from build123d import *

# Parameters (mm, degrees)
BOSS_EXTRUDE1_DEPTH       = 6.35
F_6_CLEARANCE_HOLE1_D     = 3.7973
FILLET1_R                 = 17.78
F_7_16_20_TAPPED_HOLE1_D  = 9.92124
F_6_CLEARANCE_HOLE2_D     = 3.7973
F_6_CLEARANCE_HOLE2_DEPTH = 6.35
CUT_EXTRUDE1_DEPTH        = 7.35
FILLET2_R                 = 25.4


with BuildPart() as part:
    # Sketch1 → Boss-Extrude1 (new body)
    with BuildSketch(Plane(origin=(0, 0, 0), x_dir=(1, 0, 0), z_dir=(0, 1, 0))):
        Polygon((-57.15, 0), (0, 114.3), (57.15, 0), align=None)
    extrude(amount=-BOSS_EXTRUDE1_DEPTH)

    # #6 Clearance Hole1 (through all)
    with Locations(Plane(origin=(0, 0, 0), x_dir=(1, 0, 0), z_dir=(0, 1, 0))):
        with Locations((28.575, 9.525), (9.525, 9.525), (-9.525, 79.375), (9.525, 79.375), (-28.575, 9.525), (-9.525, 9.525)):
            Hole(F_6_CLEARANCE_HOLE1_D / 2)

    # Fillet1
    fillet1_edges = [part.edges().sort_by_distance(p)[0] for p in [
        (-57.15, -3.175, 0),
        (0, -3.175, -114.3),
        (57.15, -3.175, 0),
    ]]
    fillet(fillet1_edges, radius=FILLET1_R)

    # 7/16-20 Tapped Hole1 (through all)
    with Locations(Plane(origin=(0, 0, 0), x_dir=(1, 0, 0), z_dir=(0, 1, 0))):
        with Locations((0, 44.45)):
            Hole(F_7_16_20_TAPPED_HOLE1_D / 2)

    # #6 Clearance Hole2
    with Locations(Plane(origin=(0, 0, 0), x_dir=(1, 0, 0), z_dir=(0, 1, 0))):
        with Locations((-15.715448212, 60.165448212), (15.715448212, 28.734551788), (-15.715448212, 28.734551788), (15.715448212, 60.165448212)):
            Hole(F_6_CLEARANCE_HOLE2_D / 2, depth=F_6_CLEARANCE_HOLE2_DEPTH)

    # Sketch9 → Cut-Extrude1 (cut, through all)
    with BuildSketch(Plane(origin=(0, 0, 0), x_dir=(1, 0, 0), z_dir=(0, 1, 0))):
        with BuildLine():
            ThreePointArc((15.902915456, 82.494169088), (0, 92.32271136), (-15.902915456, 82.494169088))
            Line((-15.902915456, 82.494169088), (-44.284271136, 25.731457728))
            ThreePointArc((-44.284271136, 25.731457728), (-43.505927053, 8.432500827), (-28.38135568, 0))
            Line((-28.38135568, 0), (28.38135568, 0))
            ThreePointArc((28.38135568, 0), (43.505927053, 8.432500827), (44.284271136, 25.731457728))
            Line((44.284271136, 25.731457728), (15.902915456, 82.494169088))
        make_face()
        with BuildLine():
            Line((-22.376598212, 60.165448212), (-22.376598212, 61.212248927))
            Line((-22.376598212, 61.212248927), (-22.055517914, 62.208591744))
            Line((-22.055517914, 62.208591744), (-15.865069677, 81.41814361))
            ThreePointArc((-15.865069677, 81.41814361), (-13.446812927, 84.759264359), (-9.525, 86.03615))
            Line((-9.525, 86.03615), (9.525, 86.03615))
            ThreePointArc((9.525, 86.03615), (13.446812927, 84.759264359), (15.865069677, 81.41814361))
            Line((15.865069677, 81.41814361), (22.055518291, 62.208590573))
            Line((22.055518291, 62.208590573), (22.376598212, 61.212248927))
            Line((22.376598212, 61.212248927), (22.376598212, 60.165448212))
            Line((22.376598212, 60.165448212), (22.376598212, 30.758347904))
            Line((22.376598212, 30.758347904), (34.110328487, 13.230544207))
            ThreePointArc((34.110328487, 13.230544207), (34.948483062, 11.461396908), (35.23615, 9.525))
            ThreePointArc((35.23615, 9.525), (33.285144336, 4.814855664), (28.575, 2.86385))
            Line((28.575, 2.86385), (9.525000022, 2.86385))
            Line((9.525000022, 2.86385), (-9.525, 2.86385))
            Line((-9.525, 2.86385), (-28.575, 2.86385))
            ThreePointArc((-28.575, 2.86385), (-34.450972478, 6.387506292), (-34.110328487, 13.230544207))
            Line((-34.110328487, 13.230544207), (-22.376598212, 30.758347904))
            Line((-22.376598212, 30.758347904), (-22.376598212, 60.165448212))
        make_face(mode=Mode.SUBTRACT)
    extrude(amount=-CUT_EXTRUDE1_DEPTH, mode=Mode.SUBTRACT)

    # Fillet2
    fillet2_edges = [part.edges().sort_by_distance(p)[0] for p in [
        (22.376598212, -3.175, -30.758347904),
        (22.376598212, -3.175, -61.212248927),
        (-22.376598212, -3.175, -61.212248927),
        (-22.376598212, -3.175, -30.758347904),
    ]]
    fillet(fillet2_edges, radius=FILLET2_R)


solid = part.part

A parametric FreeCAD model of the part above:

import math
import FreeCAD as App
import Part
import Sketcher

V = App.Vector
Q = App.Units.Quantity


def edges_at(feature, points):
    """Names of the edges that pass closest to the given points."""
    edges = feature.Shape.Edges
    near = lambda p: min(range(len(edges)), key=lambda i: edges[i].distToShape(Part.Vertex(*p))[0])
    return sorted({f"Edge{near(p) + 1}" for p in points})


def add_polygon(sketch, points):
    """Adds a closed chain of lines whose ends are joined by coincident constraints."""
    first, n = sketch.GeometryCount, len(points)
    for a, b in zip(points, points[1:] + points[:1]):
        sketch.addGeometry(Part.LineSegment(App.Vector(*a, 0), App.Vector(*b, 0)), False)
    for i in range(n):
        sketch.addConstraint(Sketcher.Constraint("Coincident", first + i, 2, first + (i + 1) % n, 1))

doc = App.newDocument("Part")
body = doc.addObject("PartDesign::Body", "Body")

# Sketch on XZ plane
sketch1 = doc.addObject("Sketcher::SketchObject", "Sketch")
body.addObject(sketch1)
sketch1.AttachmentSupport = (doc.XZ_Plane, [""])
sketch1.MapMode = "FlatFace"
add_polygon(sketch1, [(0, -114), (-57, 0), (57, 0)])  # lines 0-2
sketch1.addConstraint(Sketcher.Constraint("Horizontal", 1))
sketch1.addConstraint(Sketcher.Constraint("Symmetric", 0, 2, 1, 2, -1, 1))
sketch1.addConstraint(Sketcher.Constraint("PointOnObject", 2, 2, -2))
sketch1.addConstraint(Sketcher.Constraint("DistanceX", 1, 1, 1, 2, Q("4.5 in")))
sketch1.addConstraint(Sketcher.Constraint("DistanceY", 2, 2, -1, 1, Q("4.5 in")))
pad1 = doc.addObject("PartDesign::Pad", "Pad")
body.addObject(pad1)
pad1.Profile = sketch1
pad1.Length = Q("0.25 in")

# Sketch on XZ plane
sketch2 = doc.addObject("Sketcher::SketchObject", "Sketch001")
body.addObject(sketch2)
sketch2.AttachmentSupport = (doc.XZ_Plane, [""])
sketch2.MapMode = "FlatFace"
sketch2.addGeometry(Part.Circle(V(28.6, -9.5, 0), V(0, 0, 1), 1.9), False)
sketch2.addGeometry(Part.Circle(V(9.5, -9.5, 0), V(0, 0, 1), 1.9), False)
sketch2.addGeometry(Part.Circle(V(-9.5, -79.4, 0), V(0, 0, 1), 1.9), False)
sketch2.addGeometry(Part.Circle(V(9.5, -79.4, 0), V(0, 0, 1), 1.9), False)
sketch2.addGeometry(Part.Circle(V(-28.6, -9.5, 0), V(0, 0, 1), 1.9), False)
sketch2.addGeometry(Part.Circle(V(-9.5, -9.5, 0), V(0, 0, 1), 1.9), False)
sketch2.addConstraint(Sketcher.Constraint("Equal", 0, 1))
sketch2.addConstraint(Sketcher.Constraint("Equal", 1, 2))
sketch2.addConstraint(Sketcher.Constraint("Equal", 2, 3))
sketch2.addConstraint(Sketcher.Constraint("Equal", 3, 4))
sketch2.addConstraint(Sketcher.Constraint("Equal", 4, 5))
sketch2.addConstraint(Sketcher.Constraint("Symmetric", 2, 3, 3, 3, -2))
sketch2.addConstraint(Sketcher.Constraint("Symmetric", 0, 3, 4, 3, -2))
sketch2.addConstraint(Sketcher.Constraint("Symmetric", 1, 3, 5, 3, -2))
sketch2.addConstraint(Sketcher.Constraint("Horizontal", 0, 3, 1, 3))
sketch2.addConstraint(Sketcher.Constraint("Vertical", 1, 3, 3, 3))
sketch2.addConstraint(Sketcher.Constraint("Diameter", 0, Q("0.1495 in")))
sketch2.addConstraint(Sketcher.Constraint("DistanceX", 2, 3, 0, 3, Q("1.5 in")))
sketch2.addConstraint(Sketcher.Constraint("DistanceX", 1, 3, 0, 3, Q("0.75 in")))
sketch2.addConstraint(Sketcher.Constraint("DistanceY", 2, 3, 1, 3, Q("2.75 in")))
sketch2.addConstraint(Sketcher.Constraint("DistanceY", 0, 3, -1, 1, Q("0.375 in")))
doc.recompute()
hole = doc.addObject("PartDesign::Hole", "Hole")
body.addObject(hole)
hole.Profile = sketch2
hole.ThreadType = "None"
hole.Diameter = Q("0.1495 in")
hole.DepthType = "ThroughAll"
hole.Reversed = True
doc.recompute()

fillet = doc.addObject("PartDesign::Fillet", "Fillet")
body.addObject(fillet)
fillet.Base = (hole, edges_at(hole, [(-57.15, -3.175, 0), (0, -3.175, -114.3), (57.15, -3.175, 0)]))
fillet.Radius = Q("0.7 in")

# Sketch on XZ plane
sketch3 = doc.addObject("Sketcher::SketchObject", "Sketch002")
body.addObject(sketch3)
sketch3.AttachmentSupport = (doc.XZ_Plane, [""])
sketch3.MapMode = "FlatFace"
sketch3.addGeometry(Part.Circle(V(0, -44.5, 0), V(0, 0, 1), 5), False)
sketch3.addConstraint(Sketcher.Constraint("PointOnObject", 0, 3, -2))
sketch3.addConstraint(Sketcher.Constraint("Diameter", 0, Q("0.3906 in")))
sketch3.addConstraint(Sketcher.Constraint("DistanceY", 0, 3, -1, 1, Q("1.75 in")))
doc.recompute()
hole2 = doc.addObject("PartDesign::Hole", "Hole001")
body.addObject(hole2)
hole2.Profile = sketch3
hole2.ThreadType = "None"
hole2.Diameter = Q("0.3906 in")
hole2.DepthType = "ThroughAll"
hole2.Reversed = True

# Sketch on XZ plane
sketch4 = doc.addObject("Sketcher::SketchObject", "Sketch003")
body.addObject(sketch4)
sketch4.AttachmentSupport = (doc.XZ_Plane, [""])
sketch4.MapMode = "FlatFace"
sketch4.addGeometry(Part.Circle(V(-15.7, -60.2, 0), V(0, 0, 1), 1.9), False)
sketch4.addGeometry(Part.Circle(V(15.7, -28.7, 0), V(0, 0, 1), 1.9), False)
sketch4.addGeometry(Part.Circle(V(-15.7, -28.7, 0), V(0, 0, 1), 1.9), False)
sketch4.addGeometry(Part.Circle(V(15.7, -60.2, 0), V(0, 0, 1), 1.9), False)
sketch4.addConstraint(Sketcher.Constraint("Equal", 0, 1))
sketch4.addConstraint(Sketcher.Constraint("Equal", 1, 2))
sketch4.addConstraint(Sketcher.Constraint("Equal", 2, 3))
sketch4.addConstraint(Sketcher.Constraint("Symmetric", 1, 3, 2, 3, -2))
sketch4.addConstraint(Sketcher.Constraint("Symmetric", 0, 3, 3, 3, -2))
sketch4.addConstraint(Sketcher.Constraint("Vertical", 0, 3, 2, 3))
sketch4.addConstraint(Sketcher.Constraint("Diameter", 0, Q("0.1495 in")))
sketch4.addConstraint(Sketcher.Constraint("DistanceX", 0, 3, -1, 1, 15.715448))
sketch4.addConstraint(Sketcher.Constraint("DistanceY", 0, 3, -1, 1, 60.165448))
sketch4.addConstraint(Sketcher.Constraint("DistanceY", 1, 3, -1, 1, 28.734552))
doc.recompute()
hole3 = doc.addObject("PartDesign::Hole", "Hole002")
body.addObject(hole3)
hole3.Profile = sketch4
hole3.ThreadType = "None"
hole3.Diameter = Q("0.1495 in")
hole3.DepthType = "Dimension"
hole3.Depth = Q("0.25 in")
hole3.DrillPoint = "Flat"
hole3.Reversed = True

# Sketch on XZ plane
sketch5 = doc.addObject("Sketcher::SketchObject", "Sketch004")
body.addObject(sketch5)
sketch5.AttachmentSupport = (doc.XZ_Plane, [""])
sketch5.MapMode = "FlatFace"
sketch5.addGeometry(Part.ArcOfCircle(Part.Circle(V(0, -74.5, 0), V(0, 0, 1), 17.8), math.radians(-153), math.radians(-27)), False)
sketch5.addGeometry(Part.LineSegment(V(-15.9, -82.5, 0), V(-44.3, -25.7, 0)), False)
sketch5.addGeometry(Part.ArcOfCircle(Part.Circle(V(-28.4, -17.8, 0), V(0, 0, 1), 17.8), math.radians(90), math.radians(207)), False)
sketch5.addGeometry(Part.LineSegment(V(-28.4, 0, 0), V(28.4, 0, 0)), False)
sketch5.addGeometry(Part.ArcOfCircle(Part.Circle(V(28.4, -17.8, 0), V(0, 0, 1), 17.8), math.radians(-27), math.radians(90)), False)
sketch5.addGeometry(Part.LineSegment(V(44.3, -25.7, 0), V(15.9, -82.5, 0)), False)
sketch5.addGeometry(Part.LineSegment(V(-22.4, -30.8, 0), V(-22.4, -61.2, 0)), False)
sketch5.addGeometry(Part.LineSegment(V(-22.4, -61.2, 0), V(-22.1, -62.2, 0)), False)
sketch5.addGeometry(Part.LineSegment(V(-22.1, -62.2, 0), V(-15.9, -81.4, 0)), False)
sketch5.addGeometry(Part.ArcOfCircle(Part.Circle(V(-9.5, -79.4, 0), V(0, 0, 1), 6.7), math.radians(-162), math.radians(-90)), False)
sketch5.addGeometry(Part.LineSegment(V(-9.5, -86, 0), V(9.5, -86, 0)), False)
sketch5.addGeometry(Part.ArcOfCircle(Part.Circle(V(9.5, -79.4, 0), V(0, 0, 1), 6.7), math.radians(-90), math.radians(-18)), False)
sketch5.addGeometry(Part.LineSegment(V(15.9, -81.4, 0), V(22.1, -62.2, 0)), False)
sketch5.addGeometry(Part.LineSegment(V(22.1, -62.2, 0), V(22.4, -61.2, 0)), False)
sketch5.addGeometry(Part.LineSegment(V(22.4, -61.2, 0), V(22.4, -30.8, 0)), False)
sketch5.addGeometry(Part.LineSegment(V(22.4, -30.8, 0), V(34.1, -13.2, 0)), False)
sketch5.addGeometry(Part.ArcOfCircle(Part.Circle(V(28.6, -9.5, 0), V(0, 0, 1), 6.7), math.radians(-34), math.radians(0)), False)
sketch5.addGeometry(Part.ArcOfCircle(Part.Circle(V(28.6, -9.5, 0), V(0, 0, 1), 6.7), math.radians(0), math.radians(90)), False)
sketch5.addGeometry(Part.LineSegment(V(28.6, -2.9, 0), V(-28.6, -2.9, 0)), False)
sketch5.addGeometry(Part.ArcOfCircle(Part.Circle(V(-28.6, -9.5, 0), V(0, 0, 1), 6.7), math.radians(90), math.radians(214)), False)
sketch5.addGeometry(Part.LineSegment(V(-34.1, -13.2, 0), V(-22.4, -30.8, 0)), False)
sketch5.addConstraint(Sketcher.Constraint("Tangent", 0, 1, 1, 1))
sketch5.addConstraint(Sketcher.Constraint("Tangent", 1, 2, 2, 2))
sketch5.addConstraint(Sketcher.Constraint("Tangent", 2, 1, 3, 1))
sketch5.addConstraint(Sketcher.Constraint("Tangent", 3, 2, 4, 2))
sketch5.addConstraint(Sketcher.Constraint("Tangent", 4, 1, 5, 1))
sketch5.addConstraint(Sketcher.Constraint("Tangent", 5, 2, 0, 2))
sketch5.addConstraint(Sketcher.Constraint("Coincident", 6, 2, 7, 1))
sketch5.addConstraint(Sketcher.Constraint("Coincident", 7, 2, 8, 1))
sketch5.addConstraint(Sketcher.Constraint("Tangent", 8, 2, 9, 1))
sketch5.addConstraint(Sketcher.Constraint("Tangent", 9, 2, 10, 1))
sketch5.addConstraint(Sketcher.Constraint("Tangent", 10, 2, 11, 1))
sketch5.addConstraint(Sketcher.Constraint("Tangent", 11, 2, 12, 1))
sketch5.addConstraint(Sketcher.Constraint("Coincident", 12, 2, 13, 1))
sketch5.addConstraint(Sketcher.Constraint("Coincident", 13, 2, 14, 1))
sketch5.addConstraint(Sketcher.Constraint("Coincident", 14, 2, 15, 1))
sketch5.addConstraint(Sketcher.Constraint("Tangent", 15, 2, 16, 1))
sketch5.addConstraint(Sketcher.Constraint("Tangent", 16, 2, 17, 1))
sketch5.addConstraint(Sketcher.Constraint("Tangent", 17, 2, 18, 1))
sketch5.addConstraint(Sketcher.Constraint("Tangent", 18, 2, 19, 1))
sketch5.addConstraint(Sketcher.Constraint("Tangent", 19, 2, 20, 1))
sketch5.addConstraint(Sketcher.Constraint("Coincident", 20, 2, 6, 1))
sketch5.addConstraint(Sketcher.Constraint("Horizontal", 3))
sketch5.addConstraint(Sketcher.Constraint("Vertical", 6))
sketch5.addConstraint(Sketcher.Constraint("Horizontal", 10))
sketch5.addConstraint(Sketcher.Constraint("Vertical", 14))
sketch5.addConstraint(Sketcher.Constraint("Horizontal", 18))
sketch5.addConstraint(Sketcher.Constraint("Equal", 0, 2))
sketch5.addConstraint(Sketcher.Constraint("Equal", 2, 4))
sketch5.addConstraint(Sketcher.Constraint("Equal", 9, 11))
sketch5.addConstraint(Sketcher.Constraint("Equal", 11, 16))
sketch5.addConstraint(Sketcher.Constraint("Equal", 16, 17))
sketch5.addConstraint(Sketcher.Constraint("Equal", 17, 19))
sketch5.addConstraint(Sketcher.Constraint("Symmetric", 2, 1, 3, 2, -1, 1))
sketch5.addConstraint(Sketcher.Constraint("Symmetric", 8, 2, 11, 2, -2))
sketch5.addConstraint(Sketcher.Constraint("Symmetric", 6, 2, 13, 2, -2))
sketch5.addConstraint(Sketcher.Constraint("Symmetric", 15, 2, 19, 2, -2))
sketch5.addConstraint(Sketcher.Constraint("PointOnObject", 0, 3, -2))
sketch5.addConstraint(Sketcher.Constraint("Parallel", 7, 8))
sketch5.addConstraint(Sketcher.Constraint("Horizontal", 7, 2, 12, 2))
sketch5.addConstraint(Sketcher.Constraint("Horizontal", 19, 3, 16, 2))
sketch5.addConstraint(Sketcher.Constraint("Radius", 0, Q("0.7 in")))
sketch5.addConstraint(Sketcher.Constraint("DistanceX", 10, 1, 10, 2, Q("0.75 in")))
sketch5.addConstraint(Sketcher.Constraint("DistanceX", 18, 2, 18, 1, Q("2.25 in")))
sketch5.addConstraint(Sketcher.Constraint("DistanceY", 11, 3, 16, 3, Q("2.75 in")))
sketch5.addConstraint(Sketcher.Constraint("DistanceY", 9, 3, -1, 1, Q("3.125 in")))
sketch5.addConstraint(Sketcher.Constraint("Radius", 9, 6.66115))
sketch5.addConstraint(Sketcher.Constraint("DistanceY", 6, 2, 6, 1, 30.453901))
sketch5.addConstraint(Sketcher.Constraint("Distance", 7, 1.046801))
sketch5.addConstraint(Sketcher.Constraint("DistanceX", 3, 1, 3, 2, 56.762711))
sketch5.addConstraint(Sketcher.Constraint("DistanceX", 6, 2, -1, 1, 22.376598))
sketch5.addConstraint(Sketcher.Constraint("Distance", 1, 63.462641))
sketch5.addConstraint(Sketcher.Constraint("Distance", 8, 20.182382))
pocket1 = doc.addObject("PartDesign::Pocket", "Pocket")
body.addObject(pocket1)
pocket1.Profile = sketch5
pocket1.Type = "ThroughAll"
pocket1.Reversed = True
doc.recompute()

fillet2 = doc.addObject("PartDesign::Fillet", "Fillet001")
body.addObject(fillet2)
fillet2.Base = (pocket1, edges_at(pocket1, [
    (22.377, -3.175, -30.758),
    (22.377, -3.175, -61.212),
    (-22.377, -3.175, -61.212),
    (-22.377, -3.175, -30.758),
]))
fillet2.Radius = Q("1 in")

doc.recompute()
